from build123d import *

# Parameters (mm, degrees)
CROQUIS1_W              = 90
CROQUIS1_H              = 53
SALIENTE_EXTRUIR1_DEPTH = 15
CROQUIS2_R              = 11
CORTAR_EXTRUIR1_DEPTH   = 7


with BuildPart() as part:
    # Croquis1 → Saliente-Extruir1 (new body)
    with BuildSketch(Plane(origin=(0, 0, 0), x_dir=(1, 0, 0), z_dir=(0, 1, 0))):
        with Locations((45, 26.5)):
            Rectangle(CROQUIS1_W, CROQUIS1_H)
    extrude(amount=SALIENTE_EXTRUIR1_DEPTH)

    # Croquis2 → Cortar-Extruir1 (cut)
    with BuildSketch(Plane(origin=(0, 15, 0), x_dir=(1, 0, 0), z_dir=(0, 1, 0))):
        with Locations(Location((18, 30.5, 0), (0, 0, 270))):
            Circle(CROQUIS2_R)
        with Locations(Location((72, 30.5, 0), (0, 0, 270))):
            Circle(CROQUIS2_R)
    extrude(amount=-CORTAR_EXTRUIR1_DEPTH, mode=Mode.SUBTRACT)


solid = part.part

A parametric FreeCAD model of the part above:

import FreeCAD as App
import Part
import Sketcher


def add_polygon(sketch, points):
    """Adds a closed chain of lines whose ends are joined by coincident constraints."""
    first, n = sketch.GeometryCount, len(points)
    for a, b in zip(points, points[1:] + points[:1]):
        sketch.addGeometry(Part.LineSegment(App.Vector(*a, 0), App.Vector(*b, 0)), False)
    for i in range(n):
        sketch.addConstraint(Sketcher.Constraint("Coincident", first + i, 2, first + (i + 1) % n, 1))

doc = App.newDocument("Part")
body = doc.addObject("PartDesign::Body", "Body")

# Sketch on XZ plane
sketch1 = body.newObject("Sketcher::SketchObject", "Sketch")
sketch1.AttachmentSupport = (doc.getObject("XZ_Plane"), [""])
sketch1.MapMode = "FlatFace"
add_polygon(sketch1, [(0, -53), (0, 0), (90, 0), (90, -53)])  # lines 0-3
sketch1.addConstraint([
    Sketcher.Constraint("Vertical", 0),
    Sketcher.Constraint("Horizontal", 1),
    Sketcher.Constraint("Vertical", 2),
    Sketcher.Constraint("Horizontal", 3),
    Sketcher.Constraint("Coincident", 0, 2, -1, 1),
    Sketcher.Constraint("DistanceX", 1, 1, 1, 2, 90.0),
    Sketcher.Constraint("DistanceY", 0, 1, 0, 2, 53.0),
])
pad1 = body.newObject("PartDesign::Pad", "Pad")
pad1.Profile = sketch1
pad1.Length = 15
pad1.Reversed = True

# Sketch on XZ plane
sketch2 = body.newObject("Sketcher::SketchObject", "Sketch001")
sketch2.AttachmentSupport = (doc.getObject("XZ_Plane"), [""])
sketch2.MapMode = "FlatFace"
sketch2.AttachmentOffset = App.Placement(App.Vector(0, 0, -15), App.Rotation())
sketch2.addGeometry([
    Part.Circle(App.Vector(18, -30.5, 0), App.Vector(0, 0, 1), 11),
    Part.Circle(App.Vector(72, -30.5, 0), App.Vector(0, 0, 1), 11),
], False)
sketch2.addConstraint([
    Sketcher.Constraint("Equal", 0, 1),
    Sketcher.Constraint("Horizontal", 0, 3, 1, 3),
    Sketcher.Constraint("Diameter", 0, 22.0),
    Sketcher.Constraint("DistanceX", -1, 1, 0, 3, 18.0),
    Sketcher.Constraint("DistanceX", -1, 1, 1, 3, 72.0),
    Sketcher.Constraint("DistanceY", 0, 3, -1, 1, 30.5),
])
pocket1 = body.newObject("PartDesign::Pocket", "Pocket")
pocket1.Profile = sketch2
pocket1.Length = 7
pocket1.Reversed = True

doc.recompute()
